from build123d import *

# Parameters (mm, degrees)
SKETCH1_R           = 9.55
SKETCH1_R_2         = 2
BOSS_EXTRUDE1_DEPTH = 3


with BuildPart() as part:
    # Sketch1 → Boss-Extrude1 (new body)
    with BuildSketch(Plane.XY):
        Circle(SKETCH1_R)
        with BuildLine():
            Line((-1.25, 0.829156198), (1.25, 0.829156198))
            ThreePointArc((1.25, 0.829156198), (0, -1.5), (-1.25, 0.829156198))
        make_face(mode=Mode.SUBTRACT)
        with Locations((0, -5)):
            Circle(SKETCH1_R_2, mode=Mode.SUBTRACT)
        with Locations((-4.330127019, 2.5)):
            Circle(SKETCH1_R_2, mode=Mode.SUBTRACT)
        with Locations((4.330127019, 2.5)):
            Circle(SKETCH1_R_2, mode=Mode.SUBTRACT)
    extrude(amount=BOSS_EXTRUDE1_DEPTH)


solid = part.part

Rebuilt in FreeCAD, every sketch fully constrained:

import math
import FreeCAD as App
import Part
import Sketcher
from FreeCAD import Vector
Q = App.Units.Quantity

doc = App.newDocument("Part")
body = doc.addObject("PartDesign::Body", "Body")

sketch1 = body.newObject("Sketcher::SketchObject", "Sketch")
sketch1.AttachmentSupport = (doc.getObject("XY_Plane"), [""])
sketch1.MapMode = "FlatFace"
sketch1.addGeometry([
    Part.Circle(Vector(0, 0, 0), Vector(0, 0, 1), 9.6),
    Part.Circle(Vector(0, -5, 0), Vector(0, 0, 1), 2),
    Part.Circle(Vector(-4.3, 2.5, 0), Vector(0, 0, 1), 2),
    Part.ArcOfCircle(Part.Circle(Vector(0, 0, 0), Vector(0, 0, 1), 1.5), math.radians(146), math.radians(394)),
    Part.LineSegment(Vector(-1.2, 0.8, 0), Vector(1.2, 0.8, 0)),
    Part.Circle(Vector(4.3, 2.5, 0), Vector(0, 0, 1), 2),
], False)
sketch1.addConstraint([
    Sketcher.Constraint("Coincident", 3, 1, 4, 1),
    Sketcher.Constraint("Coincident", 4, 2, 3, 2),
    Sketcher.Constraint("Horizontal", 4),
    Sketcher.Constraint("Coincident", 0, 3, -1, 1),
    Sketcher.Constraint("Coincident", 3, 3, -1, 1),
    Sketcher.Constraint("Equal", 1, 2),
    Sketcher.Constraint("Equal", 2, 5),
    Sketcher.Constraint("Symmetric", 2, 3, 5, 3, -2),
    Sketcher.Constraint("PointOnObject", 1, 3, -2),
    Sketcher.Constraint("Diameter", 1, Q("4 mm")),
    Sketcher.Constraint("Diameter", 0, Q("19.1 mm")),
    Sketcher.Constraint("Radius", 3, Q("1.5 mm")),
    Sketcher.Constraint("DistanceX", 4, 1, 4, 2, Q("2.5 mm")),
    Sketcher.Constraint("DistanceY", 1, 3, -1, 1, Q("5 mm")),
    Sketcher.Constraint("DistanceY", -1, 1, 2, 3, Q("2.5 mm")),
    Sketcher.Constraint("DistanceX", 2, 3, -1, 1, Q("4.330127 mm")),
])
pad1 = body.newObject("PartDesign::Pad", "Pad")
pad1.Profile = sketch1
pad1.Length = 3

doc.recompute()
